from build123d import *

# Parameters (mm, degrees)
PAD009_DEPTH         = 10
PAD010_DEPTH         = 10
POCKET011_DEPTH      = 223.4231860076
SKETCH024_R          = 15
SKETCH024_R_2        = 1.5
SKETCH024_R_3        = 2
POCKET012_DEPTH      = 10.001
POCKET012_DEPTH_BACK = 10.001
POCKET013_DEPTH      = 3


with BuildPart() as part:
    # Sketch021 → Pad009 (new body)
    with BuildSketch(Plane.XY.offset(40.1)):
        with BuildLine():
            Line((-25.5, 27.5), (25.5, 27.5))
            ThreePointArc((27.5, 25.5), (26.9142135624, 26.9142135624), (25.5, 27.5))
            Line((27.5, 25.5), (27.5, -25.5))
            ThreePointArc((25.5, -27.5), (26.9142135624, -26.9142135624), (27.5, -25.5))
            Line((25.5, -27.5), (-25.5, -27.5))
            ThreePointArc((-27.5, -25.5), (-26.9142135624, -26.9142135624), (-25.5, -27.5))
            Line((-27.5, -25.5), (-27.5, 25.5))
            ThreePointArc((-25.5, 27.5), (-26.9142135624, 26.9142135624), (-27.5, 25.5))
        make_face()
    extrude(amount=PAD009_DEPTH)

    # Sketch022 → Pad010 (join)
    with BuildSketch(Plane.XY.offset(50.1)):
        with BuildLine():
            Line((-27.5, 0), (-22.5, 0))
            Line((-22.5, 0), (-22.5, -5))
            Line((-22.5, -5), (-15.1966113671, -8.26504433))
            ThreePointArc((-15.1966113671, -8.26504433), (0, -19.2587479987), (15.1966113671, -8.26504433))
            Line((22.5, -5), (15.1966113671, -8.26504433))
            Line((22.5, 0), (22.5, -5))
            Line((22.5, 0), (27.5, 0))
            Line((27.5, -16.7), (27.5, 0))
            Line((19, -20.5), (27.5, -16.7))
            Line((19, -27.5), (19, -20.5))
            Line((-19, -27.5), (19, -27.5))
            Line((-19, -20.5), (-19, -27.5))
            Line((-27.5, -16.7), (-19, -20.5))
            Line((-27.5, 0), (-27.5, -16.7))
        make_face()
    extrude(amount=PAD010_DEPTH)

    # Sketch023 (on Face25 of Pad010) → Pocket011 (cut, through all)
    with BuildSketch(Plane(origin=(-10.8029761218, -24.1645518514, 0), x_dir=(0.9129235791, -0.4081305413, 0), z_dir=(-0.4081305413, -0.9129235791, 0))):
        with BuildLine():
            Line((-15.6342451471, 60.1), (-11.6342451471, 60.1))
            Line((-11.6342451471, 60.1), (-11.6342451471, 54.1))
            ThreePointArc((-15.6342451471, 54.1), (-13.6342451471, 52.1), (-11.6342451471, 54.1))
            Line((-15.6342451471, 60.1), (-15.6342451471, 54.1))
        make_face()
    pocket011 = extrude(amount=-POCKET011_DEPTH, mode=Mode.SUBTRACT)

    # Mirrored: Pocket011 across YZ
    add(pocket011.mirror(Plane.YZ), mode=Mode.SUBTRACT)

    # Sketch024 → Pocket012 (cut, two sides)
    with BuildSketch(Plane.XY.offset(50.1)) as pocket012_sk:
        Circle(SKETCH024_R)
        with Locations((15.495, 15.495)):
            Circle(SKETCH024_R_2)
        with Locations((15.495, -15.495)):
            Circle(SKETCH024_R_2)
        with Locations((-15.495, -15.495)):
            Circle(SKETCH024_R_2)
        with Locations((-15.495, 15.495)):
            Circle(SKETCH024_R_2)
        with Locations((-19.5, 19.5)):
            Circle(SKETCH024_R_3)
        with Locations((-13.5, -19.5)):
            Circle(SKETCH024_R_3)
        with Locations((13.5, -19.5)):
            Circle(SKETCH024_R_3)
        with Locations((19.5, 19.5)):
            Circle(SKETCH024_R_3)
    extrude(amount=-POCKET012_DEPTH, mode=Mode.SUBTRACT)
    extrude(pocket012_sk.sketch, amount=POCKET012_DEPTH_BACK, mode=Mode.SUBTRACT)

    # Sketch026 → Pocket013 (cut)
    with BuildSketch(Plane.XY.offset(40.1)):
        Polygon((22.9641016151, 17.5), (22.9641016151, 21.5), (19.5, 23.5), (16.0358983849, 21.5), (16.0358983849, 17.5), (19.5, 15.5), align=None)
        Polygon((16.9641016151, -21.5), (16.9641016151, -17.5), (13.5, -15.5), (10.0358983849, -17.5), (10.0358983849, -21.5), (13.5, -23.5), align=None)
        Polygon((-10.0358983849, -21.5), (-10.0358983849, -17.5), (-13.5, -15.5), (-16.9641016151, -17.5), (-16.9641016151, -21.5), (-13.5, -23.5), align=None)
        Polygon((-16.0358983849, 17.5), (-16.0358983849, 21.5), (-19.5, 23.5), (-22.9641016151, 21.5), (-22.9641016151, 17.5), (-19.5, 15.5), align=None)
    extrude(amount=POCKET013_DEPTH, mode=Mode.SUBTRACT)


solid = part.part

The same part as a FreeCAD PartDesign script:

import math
import FreeCAD as App
import Part
import Sketcher
from FreeCAD import Vector
Q = App.Units.Quantity

doc = App.newDocument("Part")
params = doc.addObject("Spreadsheet::Sheet", "Params")
for row, (alias, value) in enumerate([
    ("sketch1_radius", "2 mm"),
    ("sketch1_width", "51 mm"),
    ("pad1_length", "10 mm"),
    ("sketch2_radius", "16 mm"),
    ("sketch2_width", "5 mm"),
    ("sketch2_width2", "38 mm"),
    ("sketch2_height", "7 mm"),
    ("sketch2_length", "8 mm"),
    ("pad2_length", "10 mm"),
    ("sketch3_radius", "2 mm"),
    ("sketch3_height", "6 mm"),
    ("sketch4_diameter", "30 mm"),
    ("sketch4_diameter2", "3 mm"),
    ("sketch4_diameter3", "4 mm"),
    ("sketch5_height", "4 mm"),
    ("sketch5_length", "4 mm"),
    ("pocket3_length", "3 mm"),
], start=1):
    params.set(f"A{row}", alias)
    params.set(f"B{row}", "=" + value)
    params.setAlias(f"B{row}", alias)

body = doc.addObject("PartDesign::Body", "Body")

# Sketch on XY plane
sketch1 = body.newObject("Sketcher::SketchObject", "Sketch")
sketch1.AttachmentSupport = (doc.getObject("XY_Plane"), [""])
sketch1.MapMode = "FlatFace"
sketch1.AttachmentOffset = App.Placement(Vector(0, 0, 40.1), App.Rotation())
sketch1.addGeometry(Part.LineSegment(Vector(25.5, 27.5, 0), Vector(-25.5, 27.5, 0)), False)
sketch1.addGeometry(Part.ArcOfCircle(Part.Circle(Vector(-25.5, 25.5, 0), Vector(0, 0, 1), 2), math.radians(90), math.radians(180)), False)
sketch1.addGeometry(Part.LineSegment(Vector(-27.5, 25.5, 0), Vector(-27.5, -25.5, 0)), False)
sketch1.addGeometry(Part.ArcOfCircle(Part.Circle(Vector(-25.5, -25.5, 0), Vector(0, 0, 1), 2), math.radians(180), math.radians(270)), False)
sketch1.addGeometry(Part.LineSegment(Vector(-25.5, -27.5, 0), Vector(25.5, -27.5, 0)), False)
sketch1.addGeometry(Part.ArcOfCircle(Part.Circle(Vector(25.5, -25.5, 0), Vector(0, 0, 1), 2), math.radians(-90), math.radians(0)), False)
sketch1.addGeometry(Part.LineSegment(Vector(27.5, -25.5, 0), Vector(27.5, 25.5, 0)), False)
sketch1.addGeometry(Part.ArcOfCircle(Part.Circle(Vector(25.5, 25.5, 0), Vector(0, 0, 1), 2), math.radians(0), math.radians(90)), False)
sketch1.addConstraint(Sketcher.Constraint("Tangent", 0, 2, 1, 1))
sketch1.addConstraint(Sketcher.Constraint("Tangent", 1, 2, 2, 1))
sketch1.addConstraint(Sketcher.Constraint("Tangent", 2, 2, 3, 1))
sketch1.addConstraint(Sketcher.Constraint("Tangent", 3, 2, 4, 1))
sketch1.addConstraint(Sketcher.Constraint("Tangent", 4, 2, 5, 1))
sketch1.addConstraint(Sketcher.Constraint("Tangent", 5, 2, 6, 1))
sketch1.addConstraint(Sketcher.Constraint("Tangent", 6, 2, 7, 1))
sketch1.addConstraint(Sketcher.Constraint("Tangent", 7, 2, 0, 1))
sketch1.addConstraint(Sketcher.Constraint("Horizontal", 0))
sketch1.addConstraint(Sketcher.Constraint("Vertical", 2))
sketch1.addConstraint(Sketcher.Constraint("Horizontal", 4))
sketch1.addConstraint(Sketcher.Constraint("Vertical", 6))
sketch1.addConstraint(Sketcher.Constraint("Equal", 1, 3))
sketch1.addConstraint(Sketcher.Constraint("Equal", 3, 5))
sketch1.addConstraint(Sketcher.Constraint("Equal", 5, 7))
sketch1.addConstraint(Sketcher.Constraint("Symmetric", 1, 3, 5, 3, -1, 1))
sketch1.addConstraint(Sketcher.Constraint("Equal", 4, 2))
sketch1.addConstraint(Sketcher.Constraint("Radius", 1, 2.0))
sketch1.addConstraint(Sketcher.Constraint("DistanceX", 0, 2, 0, 1, 51.0))
sketch1.setExpression("Constraints[17]", "Params.sketch1_radius")
sketch1.setExpression("Constraints[18]", "Params.sketch1_width")
pad1 = body.newObject("PartDesign::Pad", "Pad")
pad1.Profile = sketch1
pad1.setExpression("Length", "Params.pad1_length")

# Sketch on XY plane
sketch2 = body.newObject("Sketcher::SketchObject", "Sketch001")
sketch2.AttachmentSupport = (doc.getObject("XY_Plane"), [""])
sketch2.MapMode = "FlatFace"
sketch2.AttachmentOffset = App.Placement(Vector(0, 0, 50.1), App.Rotation())
sketch2.addGeometry(Part.LineSegment(Vector(-22, 0, 0), Vector(-28, 0, 0)), False)
sketch2.addGeometry(Part.LineSegment(Vector(-28, 0, 0), Vector(-28, -17, 0)), False)
sketch2.addGeometry(Part.LineSegment(Vector(-28, -17, 0), Vector(-19, -20, 0)), False)
sketch2.addGeometry(Part.LineSegment(Vector(-19, -20, 0), Vector(-19, -28, 0)), False)
sketch2.addGeometry(Part.LineSegment(Vector(-19, -28, 0), Vector(19, -28, 0)), False)
sketch2.addGeometry(Part.LineSegment(Vector(19, -28, 0), Vector(19, -20, 0)), False)
sketch2.addGeometry(Part.LineSegment(Vector(19, -20, 0), Vector(28, -17, 0)), False)
sketch2.addGeometry(Part.LineSegment(Vector(28, -17, 0), Vector(28, 0, 0)), False)
sketch2.addGeometry(Part.LineSegment(Vector(28, 0, 0), Vector(22, 0, 0)), False)
sketch2.addGeometry(Part.LineSegment(Vector(22, 0, 0), Vector(22, -5, 0)), False)
sketch2.addGeometry(Part.LineSegment(Vector(22, -5, 0), Vector(15, -8, 0)), False)
sketch2.addGeometry(Part.ArcOfCircle(Part.Circle(Vector(0, -3, 0), Vector(0, 0, 1), 16), math.radians(-162), math.radians(-18)), False)
sketch2.addGeometry(Part.LineSegment(Vector(-15, -8, 0), Vector(-22, -5, 0)), False)
sketch2.addGeometry(Part.LineSegment(Vector(-22, -5, 0), Vector(-22, 0, 0)), False)
sketch2.addConstraint(Sketcher.Constraint("Coincident", 0, 2, 1, 1))
sketch2.addConstraint(Sketcher.Constraint("Coincident", 1, 2, 2, 1))
sketch2.addConstraint(Sketcher.Constraint("Coincident", 2, 2, 3, 1))
sketch2.addConstraint(Sketcher.Constraint("Coincident", 3, 2, 4, 1))
sketch2.addConstraint(Sketcher.Constraint("Coincident", 4, 2, 5, 1))
sketch2.addConstraint(Sketcher.Constraint("Coincident", 5, 2, 6, 1))
sketch2.addConstraint(Sketcher.Constraint("Coincident", 6, 2, 7, 1))
sketch2.addConstraint(Sketcher.Constraint("Coincident", 7, 2, 8, 1))
sketch2.addConstraint(Sketcher.Constraint("Coincident", 8, 2, 9, 1))
sketch2.addConstraint(Sketcher.Constraint("Coincident", 9, 2, 10, 1))
sketch2.addConstraint(Sketcher.Constraint("Coincident", 10, 2, 11, 2))
sketch2.addConstraint(Sketcher.Constraint("Coincident", 11, 1, 12, 1))
sketch2.addConstraint(Sketcher.Constraint("Coincident", 12, 2, 13, 1))
sketch2.addConstraint(Sketcher.Constraint("Coincident", 13, 2, 0, 1))
sketch2.addConstraint(Sketcher.Constraint("Horizontal", 0))
sketch2.addConstraint(Sketcher.Constraint("Vertical", 1))
sketch2.addConstraint(Sketcher.Constraint("Vertical", 3))
sketch2.addConstraint(Sketcher.Constraint("Horizontal", 4))
sketch2.addConstraint(Sketcher.Constraint("Vertical", 5))
sketch2.addConstraint(Sketcher.Constraint("Vertical", 7))
sketch2.addConstraint(Sketcher.Constraint("Horizontal", 8))
sketch2.addConstraint(Sketcher.Constraint("Vertical", 9))
sketch2.addConstraint(Sketcher.Constraint("Vertical", 13))
sketch2.addConstraint(Sketcher.Constraint("Symmetric", 0, 2, 7, 2, -1, 1))
sketch2.addConstraint(Sketcher.Constraint("Symmetric", 2, 2, 5, 2, -2))
sketch2.addConstraint(Sketcher.Constraint("Symmetric", 10, 2, 11, 1, -2))
sketch2.addConstraint(Sketcher.Constraint("Symmetric", 9, 2, 12, 2, -2))
sketch2.addConstraint(Sketcher.Constraint("PointOnObject", 0, 2, -1))
sketch2.addConstraint(Sketcher.Constraint("Parallel", 6, 10))
sketch2.addConstraint(Sketcher.Constraint("Parallel", 2, 12))
sketch2.addConstraint(Sketcher.Constraint("Equal", 8, 9))
sketch2.addConstraint(Sketcher.Constraint("Radius", 11, 16.0))
sketch2.addConstraint(Sketcher.Constraint("DistanceX", 0, 2, 0, 1, 5.0))
sketch2.addConstraint(Sketcher.Constraint("DistanceX", 4, 1, 4, 2, 38.0))
sketch2.addConstraint(Sketcher.Constraint("DistanceY", 3, 2, 3, 1, 7.0))
sketch2.addConstraint(Sketcher.Constraint("Distance", 10, 8.0))
sketch2.addConstraint(Sketcher.Constraint("DistanceY", 1, 2, 1, 1, 16.7))
sketch2.addConstraint(Sketcher.Constraint("DistanceX", 0, 2, -1, 1, 27.5))
sketch2.addConstraint(Sketcher.Constraint("DistanceY", 2, 2, -1, 1, 20.5))
sketch2.setExpression("Constraints[31]", "Params.sketch2_radius")
sketch2.setExpression("Constraints[32]", "Params.sketch2_width")
sketch2.setExpression("Constraints[33]", "Params.sketch2_width2")
sketch2.setExpression("Constraints[34]", "Params.sketch2_height")
sketch2.setExpression("Constraints[35]", "Params.sketch2_length")
pad2 = body.newObject("PartDesign::Pad", "Pad001")
pad2.Profile = sketch2
pad2.setExpression("Length", "Params.pad2_length")

# Sketch on an angled plane
sketch3 = body.newObject("Sketcher::SketchObject", "Sketch002")
sketch3.Placement = App.Placement(Vector(-10.802976, -24.164552, 0), App.Rotation(Vector(0.912923579, -0.408130541, 0), Vector(0, 0, 1), Vector(-0.408130541, -0.912923579, 0), "ZXY"))
sketch3.addGeometry(Part.LineSegment(Vector(-11.6, 60.1, 0), Vector(-15.6, 60.1, 0)), False)
sketch3.addGeometry(Part.LineSegment(Vector(-15.6, 60.1, 0), Vector(-15.6, 54.1, 0)), False)
sketch3.addGeometry(Part.ArcOfCircle(Part.Circle(Vector(-13.6, 54.1, 0), Vector(0, 0, 1), 2), math.radians(180), math.radians(360)), False)
sketch3.addGeometry(Part.LineSegment(Vector(-11.6, 54.1, 0), Vector(-11.6, 60.1, 0)), False)
sketch3.addConstraint(Sketcher.Constraint("Coincident", 0, 2, 1, 1))
sketch3.addConstraint(Sketcher.Constraint("Tangent", 1, 2, 2, 1))
sketch3.addConstraint(Sketcher.Constraint("Tangent", 2, 2, 3, 1))
sketch3.addConstraint(Sketcher.Constraint("Coincident", 3, 2, 0, 1))
sketch3.addConstraint(Sketcher.Constraint("Horizontal", 0))
sketch3.addConstraint(Sketcher.Constraint("Vertical", 1))
sketch3.addConstraint(Sketcher.Constraint("Vertical", 3))
sketch3.addConstraint(Sketcher.Constraint("Radius", 2, 2.0))
sketch3.addConstraint(Sketcher.Constraint("DistanceY", 1, 2, 1, 1, 6.0))
sketch3.addConstraint(Sketcher.Constraint("DistanceY", -1, 1, 2, 3, 54.1))
sketch3.addConstraint(Sketcher.Constraint("DistanceX", 2, 3, -1, 1, 13.634245))
sketch3.setExpression("Constraints[7]", "Params.sketch3_radius")
sketch3.setExpression("Constraints[8]", "Params.sketch3_height")
pocket1 = body.newObject("PartDesign::Pocket", "Pocket")
pocket1.Profile = sketch3
pocket1.Type = "ThroughAll"
doc.recompute()

mirrored = body.newObject("PartDesign::Mirrored", "Mirrored")
mirrored.Originals = [pocket1]
mirrored.MirrorPlane = (doc.getObject("YZ_Plane"), [""])
body.Tip = mirrored

# Sketch on XY plane
sketch4 = body.newObject("Sketcher::SketchObject", "Sketch003")
sketch4.AttachmentSupport = (doc.getObject("XY_Plane"), [""])
sketch4.MapMode = "FlatFace"
sketch4.AttachmentOffset = App.Placement(Vector(0, 0, 50.1), App.Rotation())
sketch4.addGeometry(Part.Circle(Vector(0, 0, 0), Vector(0, 0, 1), 15), False)
sketch4.addGeometry(Part.Circle(Vector(15.5, 15.5, 0), Vector(0, 0, 1), 1.5), False)
sketch4.addGeometry(Part.Circle(Vector(15.5, -15.5, 0), Vector(0, 0, 1), 1.5), False)
sketch4.addGeometry(Part.Circle(Vector(-15.5, -15.5, 0), Vector(0, 0, 1), 1.5), False)
sketch4.addGeometry(Part.Circle(Vector(-15.5, 15.5, 0), Vector(0, 0, 1), 1.5), False)
sketch4.addGeometry(Part.Circle(Vector(-19.5, 19.5, 0), Vector(0, 0, 1), 2), False)
sketch4.addGeometry(Part.Circle(Vector(-13.5, -19.5, 0), Vector(0, 0, 1), 2), False)
sketch4.addGeometry(Part.Circle(Vector(13.5, -19.5, 0), Vector(0, 0, 1), 2), False)
sketch4.addGeometry(Part.Circle(Vector(19.5, 19.5, 0), Vector(0, 0, 1), 2), False)
sketch4.addConstraint(Sketcher.Constraint("Coincident", 0, 3, -1, 1))
sketch4.addConstraint(Sketcher.Constraint("Equal", 1, 2))
sketch4.addConstraint(Sketcher.Constraint("Equal", 2, 3))
sketch4.addConstraint(Sketcher.Constraint("Equal", 3, 4))
sketch4.addConstraint(Sketcher.Constraint("Equal", 5, 6))
sketch4.addConstraint(Sketcher.Constraint("Equal", 6, 7))
sketch4.addConstraint(Sketcher.Constraint("Equal", 7, 8))
sketch4.addConstraint(Sketcher.Constraint("Symmetric", 1, 3, 3, 3, -1, 1))
sketch4.addConstraint(Sketcher.Constraint("Symmetric", 2, 3, 4, 3, -1, 1))
sketch4.addConstraint(Sketcher.Constraint("Symmetric", 2, 3, 3, 3, -2))
sketch4.addConstraint(Sketcher.Constraint("Symmetric", 6, 3, 7, 3, -2))
sketch4.addConstraint(Sketcher.Constraint("Symmetric", 5, 3, 8, 3, -2))
sketch4.addConstraint(Sketcher.Constraint("Diameter", 0, 30.0))
sketch4.addConstraint(Sketcher.Constraint("Diameter", 1, 3.0))
sketch4.addConstraint(Sketcher.Constraint("Diameter", 5, 4.0))
sketch4.addConstraint(Sketcher.Constraint("DistanceX", 5, 3, 6, 3, 6.0))
sketch4.addConstraint(Sketcher.Constraint("DistanceY", 6, 3, 5, 3, 39.0))
sketch4.addConstraint(Sketcher.Constraint("DistanceX", 6, 3, 7, 3, 27.0))
sketch4.addConstraint(Sketcher.Constraint("DistanceY", -1, 1, 5, 3, 19.5))
sketch4.addConstraint(Sketcher.Constraint("DistanceY", 2, 3, 1, 3, 30.99))
sketch4.addConstraint(Sketcher.Constraint("DistanceX", 3, 3, 2, 3, 30.99))
sketch4.setExpression("Constraints[12]", "Params.sketch4_diameter")
sketch4.setExpression("Constraints[13]", "Params.sketch4_diameter2")
sketch4.setExpression("Constraints[14]", "Params.sketch4_diameter3")
pocket2 = body.newObject("PartDesign::Pocket", "Pocket001")
pocket2.Profile = sketch4
pocket2.Type = "ThroughAll"
pocket2.Midplane = True

# Sketch on XY plane
sketch5 = body.newObject("Sketcher::SketchObject", "Sketch004")
sketch5.AttachmentSupport = (doc.getObject("XY_Plane"), [""])
sketch5.MapMode = "FlatFace"
sketch5.AttachmentOffset = App.Placement(Vector(0, 0, 40.1), App.Rotation())
sketch5.addGeometry(Part.LineSegment(Vector(23, 17.5, 0), Vector(23, 21.5, 0)), False)
sketch5.addGeometry(Part.LineSegment(Vector(23, 21.5, 0), Vector(19.5, 23.5, 0)), False)
sketch5.addGeometry(Part.LineSegment(Vector(19.5, 23.5, 0), Vector(16, 21.5, 0)), False)
sketch5.addGeometry(Part.LineSegment(Vector(16, 21.5, 0), Vector(16, 17.5, 0)), False)
sketch5.addGeometry(Part.LineSegment(Vector(16, 17.5, 0), Vector(19.5, 15.5, 0)), False)
sketch5.addGeometry(Part.LineSegment(Vector(19.5, 15.5, 0), Vector(23, 17.5, 0)), False)
sketch5.addGeometry(Part.LineSegment(Vector(17, -21.5, 0), Vector(17, -17.5, 0)), False)
sketch5.addGeometry(Part.LineSegment(Vector(17, -17.5, 0), Vector(13.5, -15.5, 0)), False)
sketch5.addGeometry(Part.LineSegment(Vector(13.5, -15.5, 0), Vector(10, -17.5, 0)), False)
sketch5.addGeometry(Part.LineSegment(Vector(10, -17.5, 0), Vector(10, -21.5, 0)), False)
sketch5.addGeometry(Part.LineSegment(Vector(10, -21.5, 0), Vector(13.5, -23.5, 0)), False)
sketch5.addGeometry(Part.LineSegment(Vector(13.5, -23.5, 0), Vector(17, -21.5, 0)), False)
sketch5.addGeometry(Part.LineSegment(Vector(-10, -21.5, 0), Vector(-10, -17.5, 0)), False)
sketch5.addGeometry(Part.LineSegment(Vector(-10, -17.5, 0), Vector(-13.5, -15.5, 0)), False)
sketch5.addGeometry(Part.LineSegment(Vector(-13.5, -15.5, 0), Vector(-17, -17.5, 0)), False)
sketch5.addGeometry(Part.LineSegment(Vector(-17, -17.5, 0), Vector(-17, -21.5, 0)), False)
sketch5.addGeometry(Part.LineSegment(Vector(-17, -21.5, 0), Vector(-13.5, -23.5, 0)), False)
sketch5.addGeometry(Part.LineSegment(Vector(-13.5, -23.5, 0), Vector(-10, -21.5, 0)), False)
sketch5.addGeometry(Part.LineSegment(Vector(-16, 17.5, 0), Vector(-16, 21.5, 0)), False)
sketch5.addGeometry(Part.LineSegment(Vector(-16, 21.5, 0), Vector(-19.5, 23.5, 0)), False)
sketch5.addGeometry(Part.LineSegment(Vector(-19.5, 23.5, 0), Vector(-23, 21.5, 0)), False)
sketch5.addGeometry(Part.LineSegment(Vector(-23, 21.5, 0), Vector(-23, 17.5, 0)), False)
sketch5.addGeometry(Part.LineSegment(Vector(-23, 17.5, 0), Vector(-19.5, 15.5, 0)), False)
sketch5.addGeometry(Part.LineSegment(Vector(-19.5, 15.5, 0), Vector(-16, 17.5, 0)), False)
sketch5.addConstraint(Sketcher.Constraint("Coincident", 0, 2, 1, 1))
sketch5.addConstraint(Sketcher.Constraint("Coincident", 1, 2, 2, 1))
sketch5.addConstraint(Sketcher.Constraint("Coincident", 2, 2, 3, 1))
sketch5.addConstraint(Sketcher.Constraint("Coincident", 3, 2, 4, 1))
sketch5.addConstraint(Sketcher.Constraint("Coincident", 4, 2, 5, 1))
sketch5.addConstraint(Sketcher.Constraint("Coincident", 5, 2, 0, 1))
sketch5.addConstraint(Sketcher.Constraint("Coincident", 6, 2, 7, 1))
sketch5.addConstraint(Sketcher.Constraint("Coincident", 7, 2, 8, 1))
sketch5.addConstraint(Sketcher.Constraint("Coincident", 8, 2, 9, 1))
sketch5.addConstraint(Sketcher.Constraint("Coincident", 9, 2, 10, 1))
sketch5.addConstraint(Sketcher.Constraint("Coincident", 10, 2, 11, 1))
sketch5.addConstraint(Sketcher.Constraint("Coincident", 11, 2, 6, 1))
sketch5.addConstraint(Sketcher.Constraint("Coincident", 12, 2, 13, 1))
sketch5.addConstraint(Sketcher.Constraint("Coincident", 13, 2, 14, 1))
sketch5.addConstraint(Sketcher.Constraint("Coincident", 14, 2, 15, 1))
sketch5.addConstraint(Sketcher.Constraint("Coincident", 15, 2, 16, 1))
sketch5.addConstraint(Sketcher.Constraint("Coincident", 16, 2, 17, 1))
sketch5.addConstraint(Sketcher.Constraint("Coincident", 17, 2, 12, 1))
sketch5.addConstraint(Sketcher.Constraint("Coincident", 18, 2, 19, 1))
sketch5.addConstraint(Sketcher.Constraint("Coincident", 19, 2, 20, 1))
sketch5.addConstraint(Sketcher.Constraint("Coincident", 20, 2, 21, 1))
sketch5.addConstraint(Sketcher.Constraint("Coincident", 21, 2, 22, 1))
sketch5.addConstraint(Sketcher.Constraint("Coincident", 22, 2, 23, 1))
sketch5.addConstraint(Sketcher.Constraint("Coincident", 23, 2, 18, 1))
sketch5.addConstraint(Sketcher.Constraint("Vertical", 0))
sketch5.addConstraint(Sketcher.Constraint("Vertical", 3))
sketch5.addConstraint(Sketcher.Constraint("Vertical", 6))
sketch5.addConstraint(Sketcher.Constraint("Vertical", 9))
sketch5.addConstraint(Sketcher.Constraint("Vertical", 12))
sketch5.addConstraint(Sketcher.Constraint("Vertical", 15))
sketch5.addConstraint(Sketcher.Constraint("Vertical", 18))
sketch5.addConstraint(Sketcher.Constraint("Vertical", 21))
sketch5.addConstraint(Sketcher.Constraint("Symmetric", 8, 2, 12, 2, -2))
sketch5.addConstraint(Sketcher.Constraint("Symmetric", 7, 2, 13, 2, -2))
sketch5.addConstraint(Sketcher.Constraint("Symmetric", 6, 2, 14, 2, -2))
sketch5.addConstraint(Sketcher.Constraint("Symmetric", 10, 2, 16, 2, -2))
sketch5.addConstraint(Sketcher.Constraint("Symmetric", 2, 2, 18, 2, -2))
sketch5.addConstraint(Sketcher.Constraint("Symmetric", 1, 2, 19, 2, -2))
sketch5.addConstraint(Sketcher.Constraint("Symmetric", 0, 2, 20, 2, -2))
sketch5.addConstraint(Sketcher.Constraint("Symmetric", 4, 2, 22, 2, -2))
sketch5.addConstraint(Sketcher.Constraint("Parallel", 1, 4))
sketch5.addConstraint(Sketcher.Constraint("Parallel", 2, 5))
sketch5.addConstraint(Sketcher.Constraint("Parallel", 4, 7))
sketch5.addConstraint(Sketcher.Constraint("Parallel", 5, 8))
sketch5.addConstraint(Sketcher.Constraint("Parallel", 7, 10))
sketch5.addConstraint(Sketcher.Constraint("Parallel", 8, 11))
sketch5.addConstraint(Sketcher.Constraint("Parallel", 10, 13))
sketch5.addConstraint(Sketcher.Constraint("Parallel", 13, 16))
sketch5.addConstraint(Sketcher.Constraint("Parallel", 14, 17))
sketch5.addConstraint(Sketcher.Constraint("Parallel", 19, 22))
sketch5.addConstraint(Sketcher.Constraint("Parallel", 20, 23))
sketch5.addConstraint(Sketcher.Constraint("Horizontal", 0, 2, 2, 2))
sketch5.addConstraint(Sketcher.Constraint("Horizontal", 3, 2, 5, 2))
sketch5.addConstraint(Sketcher.Constraint("Horizontal", 6, 2, 8, 2))
sketch5.addConstraint(Sketcher.Constraint("Horizontal", 9, 2, 11, 2))
sketch5.addConstraint(Sketcher.Constraint("Equal", 3, 6))
sketch5.addConstraint(Sketcher.Constraint("Equal", 5, 7))
sketch5.addConstraint(Sketcher.Constraint("DistanceY", 0, 1, 0, 2, 4.0))
sketch5.addConstraint(Sketcher.Constraint("Angle", 1, Q("150 deg")))
sketch5.addConstraint(Sketcher.Constraint("Distance", 1, 4.0))
sketch5.addConstraint(Sketcher.Constraint("DistanceY", 6, 2, 4, 2, 33.0))
sketch5.addConstraint(Sketcher.Constraint("DistanceX", 6, 2, 5, 2, 6.0))
sketch5.addConstraint(Sketcher.Constraint("DistanceX", 12, 2, 6, 2, 27.0))
sketch5.addConstraint(Sketcher.Constraint("DistanceY", -1, 1, 0, 2, 21.5))
sketch5.setExpression("Constraints[57]", "Params.sketch5_height")
sketch5.setExpression("Constraints[59]", "Params.sketch5_length")
pocket3 = body.newObject("PartDesign::Pocket", "Pocket002")
pocket3.Profile = sketch5
pocket3.setExpression("Length", "Params.pocket3_length")
pocket3.Reversed = True

doc.recompute()
